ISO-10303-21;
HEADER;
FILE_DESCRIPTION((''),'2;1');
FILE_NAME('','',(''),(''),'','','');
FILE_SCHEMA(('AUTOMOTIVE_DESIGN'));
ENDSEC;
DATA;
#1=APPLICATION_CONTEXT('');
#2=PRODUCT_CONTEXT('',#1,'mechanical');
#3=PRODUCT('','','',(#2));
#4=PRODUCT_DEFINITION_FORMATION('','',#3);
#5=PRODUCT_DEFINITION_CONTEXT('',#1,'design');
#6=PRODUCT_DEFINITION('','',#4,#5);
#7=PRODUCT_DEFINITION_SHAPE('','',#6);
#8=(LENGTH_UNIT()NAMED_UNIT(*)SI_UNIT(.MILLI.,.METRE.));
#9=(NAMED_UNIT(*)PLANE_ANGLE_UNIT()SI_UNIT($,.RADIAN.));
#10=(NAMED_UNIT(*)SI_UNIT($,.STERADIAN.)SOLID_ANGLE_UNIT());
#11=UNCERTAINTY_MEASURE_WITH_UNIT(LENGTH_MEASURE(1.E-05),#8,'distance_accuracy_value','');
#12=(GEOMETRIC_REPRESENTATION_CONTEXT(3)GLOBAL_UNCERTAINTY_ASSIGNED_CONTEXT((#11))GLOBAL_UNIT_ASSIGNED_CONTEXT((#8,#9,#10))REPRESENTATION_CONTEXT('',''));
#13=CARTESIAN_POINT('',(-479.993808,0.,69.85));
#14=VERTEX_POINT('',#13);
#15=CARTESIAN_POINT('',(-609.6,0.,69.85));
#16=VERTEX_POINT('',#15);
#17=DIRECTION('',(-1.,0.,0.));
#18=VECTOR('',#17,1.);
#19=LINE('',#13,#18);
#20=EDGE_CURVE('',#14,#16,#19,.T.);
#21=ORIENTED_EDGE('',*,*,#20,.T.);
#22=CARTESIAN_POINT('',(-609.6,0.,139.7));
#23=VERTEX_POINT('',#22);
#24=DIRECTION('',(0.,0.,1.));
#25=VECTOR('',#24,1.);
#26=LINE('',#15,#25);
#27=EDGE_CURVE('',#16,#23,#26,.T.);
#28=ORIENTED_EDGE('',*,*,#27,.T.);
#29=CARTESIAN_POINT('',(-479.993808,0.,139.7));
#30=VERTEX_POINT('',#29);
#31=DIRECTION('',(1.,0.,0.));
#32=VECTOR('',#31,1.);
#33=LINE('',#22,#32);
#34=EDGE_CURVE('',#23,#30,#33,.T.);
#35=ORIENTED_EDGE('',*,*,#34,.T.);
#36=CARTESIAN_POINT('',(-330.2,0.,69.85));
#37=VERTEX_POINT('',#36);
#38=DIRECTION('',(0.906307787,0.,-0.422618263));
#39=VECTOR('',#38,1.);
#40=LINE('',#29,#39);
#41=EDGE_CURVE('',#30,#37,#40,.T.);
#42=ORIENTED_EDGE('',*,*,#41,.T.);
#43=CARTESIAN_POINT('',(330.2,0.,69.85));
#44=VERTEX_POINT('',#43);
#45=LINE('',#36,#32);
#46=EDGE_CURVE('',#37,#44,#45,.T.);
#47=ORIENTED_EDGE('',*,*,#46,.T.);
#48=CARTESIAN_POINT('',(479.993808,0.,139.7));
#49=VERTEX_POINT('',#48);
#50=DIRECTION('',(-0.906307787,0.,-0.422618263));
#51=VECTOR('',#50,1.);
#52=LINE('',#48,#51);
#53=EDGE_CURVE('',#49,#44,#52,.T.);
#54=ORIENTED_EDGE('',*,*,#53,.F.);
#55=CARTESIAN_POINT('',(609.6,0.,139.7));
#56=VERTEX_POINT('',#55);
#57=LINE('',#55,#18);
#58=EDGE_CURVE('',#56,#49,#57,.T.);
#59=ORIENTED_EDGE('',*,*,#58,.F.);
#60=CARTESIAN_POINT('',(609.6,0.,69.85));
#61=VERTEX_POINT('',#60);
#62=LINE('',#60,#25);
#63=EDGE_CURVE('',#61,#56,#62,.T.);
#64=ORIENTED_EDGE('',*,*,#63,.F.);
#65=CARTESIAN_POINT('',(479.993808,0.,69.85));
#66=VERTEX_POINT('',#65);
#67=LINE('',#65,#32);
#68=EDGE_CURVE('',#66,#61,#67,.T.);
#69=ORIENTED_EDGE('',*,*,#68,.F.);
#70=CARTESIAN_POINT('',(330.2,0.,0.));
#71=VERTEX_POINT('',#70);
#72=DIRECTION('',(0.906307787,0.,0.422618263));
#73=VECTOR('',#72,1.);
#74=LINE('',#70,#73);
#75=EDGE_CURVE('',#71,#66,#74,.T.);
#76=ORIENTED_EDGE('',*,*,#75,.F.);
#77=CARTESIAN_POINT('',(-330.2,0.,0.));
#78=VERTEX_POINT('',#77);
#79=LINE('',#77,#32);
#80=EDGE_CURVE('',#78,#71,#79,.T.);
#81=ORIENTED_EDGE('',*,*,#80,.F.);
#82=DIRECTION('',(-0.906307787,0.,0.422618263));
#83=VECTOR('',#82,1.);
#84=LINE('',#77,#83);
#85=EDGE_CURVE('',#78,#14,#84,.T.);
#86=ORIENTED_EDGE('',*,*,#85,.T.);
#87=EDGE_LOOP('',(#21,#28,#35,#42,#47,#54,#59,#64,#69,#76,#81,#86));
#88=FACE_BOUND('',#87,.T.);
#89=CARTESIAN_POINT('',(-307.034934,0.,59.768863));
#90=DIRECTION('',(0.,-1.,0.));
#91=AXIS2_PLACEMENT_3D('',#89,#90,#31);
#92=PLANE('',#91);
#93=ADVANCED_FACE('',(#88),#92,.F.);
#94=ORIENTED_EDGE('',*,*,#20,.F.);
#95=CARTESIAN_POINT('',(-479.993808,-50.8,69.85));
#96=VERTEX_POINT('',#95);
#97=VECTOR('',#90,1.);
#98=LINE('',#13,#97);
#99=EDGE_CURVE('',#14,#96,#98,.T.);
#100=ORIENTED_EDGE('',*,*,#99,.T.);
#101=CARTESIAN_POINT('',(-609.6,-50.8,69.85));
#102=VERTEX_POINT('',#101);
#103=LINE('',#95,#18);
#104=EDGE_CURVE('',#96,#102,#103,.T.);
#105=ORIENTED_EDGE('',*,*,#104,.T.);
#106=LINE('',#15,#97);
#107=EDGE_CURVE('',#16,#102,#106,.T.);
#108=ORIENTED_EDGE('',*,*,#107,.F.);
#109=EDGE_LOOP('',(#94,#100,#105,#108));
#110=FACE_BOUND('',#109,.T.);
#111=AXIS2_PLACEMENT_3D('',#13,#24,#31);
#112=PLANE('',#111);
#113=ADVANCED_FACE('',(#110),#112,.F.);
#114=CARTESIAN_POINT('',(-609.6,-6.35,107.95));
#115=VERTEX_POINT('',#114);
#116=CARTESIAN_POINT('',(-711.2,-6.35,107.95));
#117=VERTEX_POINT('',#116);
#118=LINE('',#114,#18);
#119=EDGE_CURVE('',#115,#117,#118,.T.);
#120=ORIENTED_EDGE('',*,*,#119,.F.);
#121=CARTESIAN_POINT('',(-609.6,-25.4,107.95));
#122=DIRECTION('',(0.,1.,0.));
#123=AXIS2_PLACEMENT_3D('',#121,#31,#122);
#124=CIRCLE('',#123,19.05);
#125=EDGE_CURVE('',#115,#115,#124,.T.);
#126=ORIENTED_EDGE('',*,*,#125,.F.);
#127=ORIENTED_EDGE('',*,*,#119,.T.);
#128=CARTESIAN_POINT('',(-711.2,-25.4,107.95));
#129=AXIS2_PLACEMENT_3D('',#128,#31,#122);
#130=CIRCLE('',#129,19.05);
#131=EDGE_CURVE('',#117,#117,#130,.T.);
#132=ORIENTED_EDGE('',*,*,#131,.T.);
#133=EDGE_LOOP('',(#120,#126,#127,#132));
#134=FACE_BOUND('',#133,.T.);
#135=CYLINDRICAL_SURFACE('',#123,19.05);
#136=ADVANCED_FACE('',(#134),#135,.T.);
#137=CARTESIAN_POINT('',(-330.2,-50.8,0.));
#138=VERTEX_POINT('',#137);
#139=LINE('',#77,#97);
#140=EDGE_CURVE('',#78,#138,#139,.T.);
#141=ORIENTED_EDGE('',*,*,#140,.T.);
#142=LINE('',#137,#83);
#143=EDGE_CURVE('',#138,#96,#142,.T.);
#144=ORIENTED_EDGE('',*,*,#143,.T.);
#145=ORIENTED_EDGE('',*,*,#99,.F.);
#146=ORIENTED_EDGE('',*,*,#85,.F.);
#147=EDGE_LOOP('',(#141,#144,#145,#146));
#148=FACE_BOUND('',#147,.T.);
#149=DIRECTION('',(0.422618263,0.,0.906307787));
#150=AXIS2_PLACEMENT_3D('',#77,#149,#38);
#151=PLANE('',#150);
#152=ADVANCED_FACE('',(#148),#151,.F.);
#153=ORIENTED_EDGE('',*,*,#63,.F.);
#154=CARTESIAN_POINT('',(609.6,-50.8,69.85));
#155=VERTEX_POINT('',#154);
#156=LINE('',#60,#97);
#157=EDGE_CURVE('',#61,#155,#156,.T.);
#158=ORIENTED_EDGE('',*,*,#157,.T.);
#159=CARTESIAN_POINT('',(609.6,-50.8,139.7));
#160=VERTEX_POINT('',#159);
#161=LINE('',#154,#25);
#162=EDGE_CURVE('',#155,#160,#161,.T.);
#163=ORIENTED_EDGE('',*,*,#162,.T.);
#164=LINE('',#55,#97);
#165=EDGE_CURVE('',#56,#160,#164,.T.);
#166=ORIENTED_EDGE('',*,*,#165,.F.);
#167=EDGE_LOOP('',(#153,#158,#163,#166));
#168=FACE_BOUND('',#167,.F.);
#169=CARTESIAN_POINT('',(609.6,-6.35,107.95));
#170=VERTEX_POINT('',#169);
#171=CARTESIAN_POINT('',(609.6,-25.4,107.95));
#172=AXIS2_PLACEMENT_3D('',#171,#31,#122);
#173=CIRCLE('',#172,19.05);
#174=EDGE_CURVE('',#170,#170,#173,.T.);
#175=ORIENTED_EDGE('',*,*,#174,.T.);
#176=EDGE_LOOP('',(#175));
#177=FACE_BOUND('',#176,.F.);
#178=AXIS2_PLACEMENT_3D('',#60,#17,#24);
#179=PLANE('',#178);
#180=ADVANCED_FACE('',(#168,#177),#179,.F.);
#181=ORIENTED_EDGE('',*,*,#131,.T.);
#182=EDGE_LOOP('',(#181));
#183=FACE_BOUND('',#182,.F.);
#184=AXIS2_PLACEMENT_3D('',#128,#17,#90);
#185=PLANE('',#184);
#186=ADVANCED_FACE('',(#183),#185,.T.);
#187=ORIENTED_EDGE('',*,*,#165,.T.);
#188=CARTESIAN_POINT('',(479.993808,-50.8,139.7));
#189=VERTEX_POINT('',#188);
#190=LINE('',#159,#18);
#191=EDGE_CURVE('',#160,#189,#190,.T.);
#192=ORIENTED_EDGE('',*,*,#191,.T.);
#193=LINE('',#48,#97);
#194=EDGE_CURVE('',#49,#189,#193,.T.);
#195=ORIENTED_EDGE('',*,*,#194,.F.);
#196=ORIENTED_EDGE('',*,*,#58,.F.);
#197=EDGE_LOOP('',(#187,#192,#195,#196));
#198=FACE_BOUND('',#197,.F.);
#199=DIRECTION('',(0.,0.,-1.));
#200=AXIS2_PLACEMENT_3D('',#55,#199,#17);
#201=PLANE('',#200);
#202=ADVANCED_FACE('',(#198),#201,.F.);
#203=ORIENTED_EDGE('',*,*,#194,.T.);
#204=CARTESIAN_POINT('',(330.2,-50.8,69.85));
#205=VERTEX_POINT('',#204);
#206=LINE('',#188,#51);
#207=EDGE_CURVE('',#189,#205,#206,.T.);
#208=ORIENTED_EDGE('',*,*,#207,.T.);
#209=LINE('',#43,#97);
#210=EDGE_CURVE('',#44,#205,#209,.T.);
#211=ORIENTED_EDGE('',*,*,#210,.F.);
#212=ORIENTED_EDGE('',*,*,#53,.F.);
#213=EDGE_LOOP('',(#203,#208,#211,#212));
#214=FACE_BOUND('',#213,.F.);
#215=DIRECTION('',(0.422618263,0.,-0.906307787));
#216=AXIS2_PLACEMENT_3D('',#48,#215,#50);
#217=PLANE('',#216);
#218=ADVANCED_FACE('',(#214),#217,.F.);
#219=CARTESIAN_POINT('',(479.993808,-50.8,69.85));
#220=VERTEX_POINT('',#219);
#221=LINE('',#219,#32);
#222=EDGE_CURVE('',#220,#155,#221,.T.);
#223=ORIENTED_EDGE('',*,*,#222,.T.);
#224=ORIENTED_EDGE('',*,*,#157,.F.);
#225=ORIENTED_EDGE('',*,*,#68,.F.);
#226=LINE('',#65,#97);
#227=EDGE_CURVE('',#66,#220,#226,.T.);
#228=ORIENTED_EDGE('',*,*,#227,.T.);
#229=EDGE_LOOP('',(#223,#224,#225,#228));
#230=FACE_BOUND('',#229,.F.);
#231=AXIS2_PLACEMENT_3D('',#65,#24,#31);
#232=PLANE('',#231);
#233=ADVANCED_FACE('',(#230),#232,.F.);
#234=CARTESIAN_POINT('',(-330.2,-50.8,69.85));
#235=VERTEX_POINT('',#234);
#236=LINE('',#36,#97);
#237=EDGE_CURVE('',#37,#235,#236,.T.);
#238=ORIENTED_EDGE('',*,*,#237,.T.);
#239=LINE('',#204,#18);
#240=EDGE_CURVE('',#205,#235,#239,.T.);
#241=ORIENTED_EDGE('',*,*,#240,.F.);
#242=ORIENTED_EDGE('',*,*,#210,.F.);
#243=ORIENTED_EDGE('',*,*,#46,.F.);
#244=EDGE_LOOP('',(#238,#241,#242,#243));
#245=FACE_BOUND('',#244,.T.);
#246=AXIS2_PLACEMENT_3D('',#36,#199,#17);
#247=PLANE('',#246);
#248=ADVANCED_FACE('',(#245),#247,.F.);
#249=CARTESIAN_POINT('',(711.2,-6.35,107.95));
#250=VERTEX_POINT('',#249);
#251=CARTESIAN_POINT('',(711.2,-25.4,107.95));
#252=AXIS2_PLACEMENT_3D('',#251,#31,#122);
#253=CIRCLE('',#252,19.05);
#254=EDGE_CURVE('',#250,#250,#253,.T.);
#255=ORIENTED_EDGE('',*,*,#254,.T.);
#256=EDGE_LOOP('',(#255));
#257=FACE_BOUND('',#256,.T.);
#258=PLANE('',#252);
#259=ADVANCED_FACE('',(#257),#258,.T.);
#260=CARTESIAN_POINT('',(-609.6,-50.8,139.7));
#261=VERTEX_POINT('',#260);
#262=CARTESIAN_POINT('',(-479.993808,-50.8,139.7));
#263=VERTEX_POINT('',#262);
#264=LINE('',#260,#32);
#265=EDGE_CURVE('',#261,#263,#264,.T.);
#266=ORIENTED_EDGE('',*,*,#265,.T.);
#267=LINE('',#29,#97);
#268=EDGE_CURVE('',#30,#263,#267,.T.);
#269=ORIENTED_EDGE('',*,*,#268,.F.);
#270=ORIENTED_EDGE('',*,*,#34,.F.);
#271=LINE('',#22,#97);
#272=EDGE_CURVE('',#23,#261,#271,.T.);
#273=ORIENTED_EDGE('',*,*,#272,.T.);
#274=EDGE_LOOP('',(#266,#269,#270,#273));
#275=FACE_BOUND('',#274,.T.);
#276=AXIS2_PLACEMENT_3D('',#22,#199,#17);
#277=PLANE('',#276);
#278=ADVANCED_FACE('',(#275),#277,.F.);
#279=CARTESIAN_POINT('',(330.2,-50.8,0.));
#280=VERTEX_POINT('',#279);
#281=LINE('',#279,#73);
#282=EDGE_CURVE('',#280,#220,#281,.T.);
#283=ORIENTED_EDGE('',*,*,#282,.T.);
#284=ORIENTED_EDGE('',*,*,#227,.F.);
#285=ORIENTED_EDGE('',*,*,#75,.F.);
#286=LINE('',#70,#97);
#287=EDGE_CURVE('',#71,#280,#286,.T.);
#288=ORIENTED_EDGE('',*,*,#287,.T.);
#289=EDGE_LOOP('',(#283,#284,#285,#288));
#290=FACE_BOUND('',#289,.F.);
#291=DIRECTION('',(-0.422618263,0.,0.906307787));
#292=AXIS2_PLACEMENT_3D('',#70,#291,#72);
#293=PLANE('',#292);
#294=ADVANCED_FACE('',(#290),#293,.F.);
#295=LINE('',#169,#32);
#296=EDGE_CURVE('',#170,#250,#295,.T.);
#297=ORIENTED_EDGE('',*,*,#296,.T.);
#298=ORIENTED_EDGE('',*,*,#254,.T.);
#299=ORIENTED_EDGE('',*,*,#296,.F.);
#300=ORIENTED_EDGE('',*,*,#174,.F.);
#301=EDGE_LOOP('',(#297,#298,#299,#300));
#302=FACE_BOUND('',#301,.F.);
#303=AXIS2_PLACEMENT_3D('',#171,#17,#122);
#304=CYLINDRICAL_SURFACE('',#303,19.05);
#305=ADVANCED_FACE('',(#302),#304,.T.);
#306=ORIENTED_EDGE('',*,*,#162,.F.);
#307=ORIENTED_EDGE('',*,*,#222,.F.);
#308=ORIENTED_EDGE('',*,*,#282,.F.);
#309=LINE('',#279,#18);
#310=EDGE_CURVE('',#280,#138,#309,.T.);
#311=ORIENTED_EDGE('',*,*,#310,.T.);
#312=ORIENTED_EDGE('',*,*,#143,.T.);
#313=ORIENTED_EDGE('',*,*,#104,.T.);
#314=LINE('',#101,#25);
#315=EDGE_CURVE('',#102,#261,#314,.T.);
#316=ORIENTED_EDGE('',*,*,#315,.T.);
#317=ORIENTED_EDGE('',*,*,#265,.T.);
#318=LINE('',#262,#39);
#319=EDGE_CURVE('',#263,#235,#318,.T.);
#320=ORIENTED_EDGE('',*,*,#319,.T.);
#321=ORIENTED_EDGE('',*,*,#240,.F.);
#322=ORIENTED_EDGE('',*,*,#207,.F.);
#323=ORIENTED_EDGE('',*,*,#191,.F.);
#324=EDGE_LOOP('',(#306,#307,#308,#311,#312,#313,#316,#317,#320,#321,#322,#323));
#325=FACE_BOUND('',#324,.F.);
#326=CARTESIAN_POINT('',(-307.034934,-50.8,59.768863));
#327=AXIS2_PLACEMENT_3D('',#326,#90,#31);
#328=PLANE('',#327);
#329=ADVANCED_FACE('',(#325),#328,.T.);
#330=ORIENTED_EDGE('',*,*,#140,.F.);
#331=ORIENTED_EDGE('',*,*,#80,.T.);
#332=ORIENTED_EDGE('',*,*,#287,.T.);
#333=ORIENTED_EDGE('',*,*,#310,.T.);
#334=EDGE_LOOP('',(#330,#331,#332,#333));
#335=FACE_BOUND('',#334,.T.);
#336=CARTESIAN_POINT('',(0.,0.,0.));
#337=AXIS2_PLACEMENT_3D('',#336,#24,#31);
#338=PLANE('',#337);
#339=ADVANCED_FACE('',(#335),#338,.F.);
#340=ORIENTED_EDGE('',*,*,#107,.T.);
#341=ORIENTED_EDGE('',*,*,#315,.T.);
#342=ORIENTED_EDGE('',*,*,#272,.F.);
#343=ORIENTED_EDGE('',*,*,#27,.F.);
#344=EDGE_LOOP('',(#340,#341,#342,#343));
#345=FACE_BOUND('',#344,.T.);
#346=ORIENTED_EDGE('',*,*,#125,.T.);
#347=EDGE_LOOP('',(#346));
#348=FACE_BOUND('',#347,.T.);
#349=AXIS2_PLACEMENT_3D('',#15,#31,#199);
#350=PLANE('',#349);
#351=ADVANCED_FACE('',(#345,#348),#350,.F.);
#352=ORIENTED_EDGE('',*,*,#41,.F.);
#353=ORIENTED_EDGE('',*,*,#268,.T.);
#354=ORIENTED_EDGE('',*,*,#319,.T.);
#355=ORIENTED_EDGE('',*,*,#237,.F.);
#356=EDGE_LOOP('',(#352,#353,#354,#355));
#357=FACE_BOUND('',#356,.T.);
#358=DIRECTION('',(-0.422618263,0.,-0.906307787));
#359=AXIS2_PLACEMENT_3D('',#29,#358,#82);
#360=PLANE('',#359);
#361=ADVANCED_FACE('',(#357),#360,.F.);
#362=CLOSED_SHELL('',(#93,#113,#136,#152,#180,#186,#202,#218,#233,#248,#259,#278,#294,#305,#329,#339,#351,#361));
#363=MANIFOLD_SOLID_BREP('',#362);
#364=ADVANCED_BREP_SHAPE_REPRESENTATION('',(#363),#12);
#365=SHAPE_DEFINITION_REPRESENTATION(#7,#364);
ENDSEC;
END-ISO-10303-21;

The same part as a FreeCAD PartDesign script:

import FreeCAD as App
import Part
import Sketcher

V = App.Vector
Q = App.Units.Quantity


def add_polygon(sketch, points):
    """Adds a closed chain of lines whose ends are joined by coincident constraints."""
    first, n = sketch.GeometryCount, len(points)
    for a, b in zip(points, points[1:] + points[:1]):
        sketch.addGeometry(Part.LineSegment(App.Vector(*a, 0), App.Vector(*b, 0)), False)
    for i in range(n):
        sketch.addConstraint(Sketcher.Constraint("Coincident", first + i, 2, first + (i + 1) % n, 1))

doc = App.newDocument("Part")
body = doc.addObject("PartDesign::Body", "Body")

# Sketch on XZ plane
sketch1 = body.newObject("Sketcher::SketchObject", "Sketch")
sketch1.AttachmentSupport = (doc.getObject("XZ_Plane"), [""])
sketch1.MapMode = "FlatFace"
add_polygon(sketch1, [(0, 70), (0, 0), (330, 0), (480, 70), (610, 70), (610, 140), (480, 140), (330, 70)])  # lines 0-7
sketch1.addConstraint([
    Sketcher.Constraint("Vertical", 0),
    Sketcher.Constraint("Horizontal", 1),
    Sketcher.Constraint("Horizontal", 3),
    Sketcher.Constraint("Vertical", 4),
    Sketcher.Constraint("Horizontal", 5),
    Sketcher.Constraint("Horizontal", 7),
    Sketcher.Constraint("Coincident", 0, 2, -1, 1),
    Sketcher.Constraint("Parallel", 2, 6),
    Sketcher.Constraint("Horizontal", 3, 2, 6, 2),
    Sketcher.Constraint("Vertical", 2, 2, 5, 2),
    Sketcher.Constraint("Vertical", 1, 2, 6, 2),
    Sketcher.Constraint("DistanceX", 1, 1, 1, 2, Q("13 in")),
    Sketcher.Constraint("DistanceX", -1, 1, 3, 2, Q("24 in")),
    Sketcher.Constraint("Angle", 2, Q("25 deg")),
    Sketcher.Constraint("DistanceY", 0, 2, 0, 1, Q("2.75 in")),
])
pad1 = body.newObject("PartDesign::Pad", "Pad")
pad1.Profile = sketch1
pad1.Length = Q("2 in")
body2 = doc.addObject("PartDesign::Body", "Body001")
doc.recompute()

body2.BaseFeature = body
doc.recompute()

mirroring = doc.addObject("Part::Mirroring", "Mirroring")
mirroring.Source = body
mirroring.Base = V(0, 0, 0)
mirroring.Normal = V(1, 0, 0)
body3 = doc.addObject("PartDesign::Body", "Body002")
body3.BaseFeature = mirroring
boolean = body2.newObject("PartDesign::Boolean", "Boolean")
boolean.Type = "Fuse"
boolean.addObjects([body3])
doc.recompute()

# Sketch on YZ plane
sketch2 = body2.newObject("Sketcher::SketchObject", "Sketch001")
sketch2.AttachmentSupport = (doc.getObject("YZ_Plane001"), [""])
sketch2.MapMode = "FlatFace"
sketch2.AttachmentOffset = App.Placement(V(0, 0, 24 * 25.4), App.Rotation())
sketch2.addGeometry(Part.Circle(V(-25, 108, 0), V(0, 0, 1), 19), False)
sketch2.addConstraint([
    Sketcher.Constraint("Diameter", 0, Q("1.5 in")),
    Sketcher.Constraint("DistanceX", 0, 3, -1, 1, Q("1 in")),
    Sketcher.Constraint("DistanceY", -1, 1, 0, 3, Q("4.25 in")),
])
pad2 = body2.newObject("PartDesign::Pad", "Pad001")
pad2.Profile = sketch2
pad2.Length = Q("4 in")
body4 = doc.addObject("PartDesign::Body", "Body003")
doc.recompute()

body4.BaseFeature = body2
doc.recompute()

mirroring2 = doc.addObject("Part::Mirroring", "Mirroring001")
mirroring2.Source = body2
mirroring2.Base = V(0, 0, 0)
mirroring2.Normal = V(1, 0, 0)
body5 = doc.addObject("PartDesign::Body", "Body004")
body5.BaseFeature = mirroring2
boolean2 = body4.newObject("PartDesign::Boolean", "Boolean001")
boolean2.Type = "Fuse"
boolean2.addObjects([body5])
doc.recompute()
mirroring.Visibility = False
mirroring2.Visibility = False

doc.recompute()
